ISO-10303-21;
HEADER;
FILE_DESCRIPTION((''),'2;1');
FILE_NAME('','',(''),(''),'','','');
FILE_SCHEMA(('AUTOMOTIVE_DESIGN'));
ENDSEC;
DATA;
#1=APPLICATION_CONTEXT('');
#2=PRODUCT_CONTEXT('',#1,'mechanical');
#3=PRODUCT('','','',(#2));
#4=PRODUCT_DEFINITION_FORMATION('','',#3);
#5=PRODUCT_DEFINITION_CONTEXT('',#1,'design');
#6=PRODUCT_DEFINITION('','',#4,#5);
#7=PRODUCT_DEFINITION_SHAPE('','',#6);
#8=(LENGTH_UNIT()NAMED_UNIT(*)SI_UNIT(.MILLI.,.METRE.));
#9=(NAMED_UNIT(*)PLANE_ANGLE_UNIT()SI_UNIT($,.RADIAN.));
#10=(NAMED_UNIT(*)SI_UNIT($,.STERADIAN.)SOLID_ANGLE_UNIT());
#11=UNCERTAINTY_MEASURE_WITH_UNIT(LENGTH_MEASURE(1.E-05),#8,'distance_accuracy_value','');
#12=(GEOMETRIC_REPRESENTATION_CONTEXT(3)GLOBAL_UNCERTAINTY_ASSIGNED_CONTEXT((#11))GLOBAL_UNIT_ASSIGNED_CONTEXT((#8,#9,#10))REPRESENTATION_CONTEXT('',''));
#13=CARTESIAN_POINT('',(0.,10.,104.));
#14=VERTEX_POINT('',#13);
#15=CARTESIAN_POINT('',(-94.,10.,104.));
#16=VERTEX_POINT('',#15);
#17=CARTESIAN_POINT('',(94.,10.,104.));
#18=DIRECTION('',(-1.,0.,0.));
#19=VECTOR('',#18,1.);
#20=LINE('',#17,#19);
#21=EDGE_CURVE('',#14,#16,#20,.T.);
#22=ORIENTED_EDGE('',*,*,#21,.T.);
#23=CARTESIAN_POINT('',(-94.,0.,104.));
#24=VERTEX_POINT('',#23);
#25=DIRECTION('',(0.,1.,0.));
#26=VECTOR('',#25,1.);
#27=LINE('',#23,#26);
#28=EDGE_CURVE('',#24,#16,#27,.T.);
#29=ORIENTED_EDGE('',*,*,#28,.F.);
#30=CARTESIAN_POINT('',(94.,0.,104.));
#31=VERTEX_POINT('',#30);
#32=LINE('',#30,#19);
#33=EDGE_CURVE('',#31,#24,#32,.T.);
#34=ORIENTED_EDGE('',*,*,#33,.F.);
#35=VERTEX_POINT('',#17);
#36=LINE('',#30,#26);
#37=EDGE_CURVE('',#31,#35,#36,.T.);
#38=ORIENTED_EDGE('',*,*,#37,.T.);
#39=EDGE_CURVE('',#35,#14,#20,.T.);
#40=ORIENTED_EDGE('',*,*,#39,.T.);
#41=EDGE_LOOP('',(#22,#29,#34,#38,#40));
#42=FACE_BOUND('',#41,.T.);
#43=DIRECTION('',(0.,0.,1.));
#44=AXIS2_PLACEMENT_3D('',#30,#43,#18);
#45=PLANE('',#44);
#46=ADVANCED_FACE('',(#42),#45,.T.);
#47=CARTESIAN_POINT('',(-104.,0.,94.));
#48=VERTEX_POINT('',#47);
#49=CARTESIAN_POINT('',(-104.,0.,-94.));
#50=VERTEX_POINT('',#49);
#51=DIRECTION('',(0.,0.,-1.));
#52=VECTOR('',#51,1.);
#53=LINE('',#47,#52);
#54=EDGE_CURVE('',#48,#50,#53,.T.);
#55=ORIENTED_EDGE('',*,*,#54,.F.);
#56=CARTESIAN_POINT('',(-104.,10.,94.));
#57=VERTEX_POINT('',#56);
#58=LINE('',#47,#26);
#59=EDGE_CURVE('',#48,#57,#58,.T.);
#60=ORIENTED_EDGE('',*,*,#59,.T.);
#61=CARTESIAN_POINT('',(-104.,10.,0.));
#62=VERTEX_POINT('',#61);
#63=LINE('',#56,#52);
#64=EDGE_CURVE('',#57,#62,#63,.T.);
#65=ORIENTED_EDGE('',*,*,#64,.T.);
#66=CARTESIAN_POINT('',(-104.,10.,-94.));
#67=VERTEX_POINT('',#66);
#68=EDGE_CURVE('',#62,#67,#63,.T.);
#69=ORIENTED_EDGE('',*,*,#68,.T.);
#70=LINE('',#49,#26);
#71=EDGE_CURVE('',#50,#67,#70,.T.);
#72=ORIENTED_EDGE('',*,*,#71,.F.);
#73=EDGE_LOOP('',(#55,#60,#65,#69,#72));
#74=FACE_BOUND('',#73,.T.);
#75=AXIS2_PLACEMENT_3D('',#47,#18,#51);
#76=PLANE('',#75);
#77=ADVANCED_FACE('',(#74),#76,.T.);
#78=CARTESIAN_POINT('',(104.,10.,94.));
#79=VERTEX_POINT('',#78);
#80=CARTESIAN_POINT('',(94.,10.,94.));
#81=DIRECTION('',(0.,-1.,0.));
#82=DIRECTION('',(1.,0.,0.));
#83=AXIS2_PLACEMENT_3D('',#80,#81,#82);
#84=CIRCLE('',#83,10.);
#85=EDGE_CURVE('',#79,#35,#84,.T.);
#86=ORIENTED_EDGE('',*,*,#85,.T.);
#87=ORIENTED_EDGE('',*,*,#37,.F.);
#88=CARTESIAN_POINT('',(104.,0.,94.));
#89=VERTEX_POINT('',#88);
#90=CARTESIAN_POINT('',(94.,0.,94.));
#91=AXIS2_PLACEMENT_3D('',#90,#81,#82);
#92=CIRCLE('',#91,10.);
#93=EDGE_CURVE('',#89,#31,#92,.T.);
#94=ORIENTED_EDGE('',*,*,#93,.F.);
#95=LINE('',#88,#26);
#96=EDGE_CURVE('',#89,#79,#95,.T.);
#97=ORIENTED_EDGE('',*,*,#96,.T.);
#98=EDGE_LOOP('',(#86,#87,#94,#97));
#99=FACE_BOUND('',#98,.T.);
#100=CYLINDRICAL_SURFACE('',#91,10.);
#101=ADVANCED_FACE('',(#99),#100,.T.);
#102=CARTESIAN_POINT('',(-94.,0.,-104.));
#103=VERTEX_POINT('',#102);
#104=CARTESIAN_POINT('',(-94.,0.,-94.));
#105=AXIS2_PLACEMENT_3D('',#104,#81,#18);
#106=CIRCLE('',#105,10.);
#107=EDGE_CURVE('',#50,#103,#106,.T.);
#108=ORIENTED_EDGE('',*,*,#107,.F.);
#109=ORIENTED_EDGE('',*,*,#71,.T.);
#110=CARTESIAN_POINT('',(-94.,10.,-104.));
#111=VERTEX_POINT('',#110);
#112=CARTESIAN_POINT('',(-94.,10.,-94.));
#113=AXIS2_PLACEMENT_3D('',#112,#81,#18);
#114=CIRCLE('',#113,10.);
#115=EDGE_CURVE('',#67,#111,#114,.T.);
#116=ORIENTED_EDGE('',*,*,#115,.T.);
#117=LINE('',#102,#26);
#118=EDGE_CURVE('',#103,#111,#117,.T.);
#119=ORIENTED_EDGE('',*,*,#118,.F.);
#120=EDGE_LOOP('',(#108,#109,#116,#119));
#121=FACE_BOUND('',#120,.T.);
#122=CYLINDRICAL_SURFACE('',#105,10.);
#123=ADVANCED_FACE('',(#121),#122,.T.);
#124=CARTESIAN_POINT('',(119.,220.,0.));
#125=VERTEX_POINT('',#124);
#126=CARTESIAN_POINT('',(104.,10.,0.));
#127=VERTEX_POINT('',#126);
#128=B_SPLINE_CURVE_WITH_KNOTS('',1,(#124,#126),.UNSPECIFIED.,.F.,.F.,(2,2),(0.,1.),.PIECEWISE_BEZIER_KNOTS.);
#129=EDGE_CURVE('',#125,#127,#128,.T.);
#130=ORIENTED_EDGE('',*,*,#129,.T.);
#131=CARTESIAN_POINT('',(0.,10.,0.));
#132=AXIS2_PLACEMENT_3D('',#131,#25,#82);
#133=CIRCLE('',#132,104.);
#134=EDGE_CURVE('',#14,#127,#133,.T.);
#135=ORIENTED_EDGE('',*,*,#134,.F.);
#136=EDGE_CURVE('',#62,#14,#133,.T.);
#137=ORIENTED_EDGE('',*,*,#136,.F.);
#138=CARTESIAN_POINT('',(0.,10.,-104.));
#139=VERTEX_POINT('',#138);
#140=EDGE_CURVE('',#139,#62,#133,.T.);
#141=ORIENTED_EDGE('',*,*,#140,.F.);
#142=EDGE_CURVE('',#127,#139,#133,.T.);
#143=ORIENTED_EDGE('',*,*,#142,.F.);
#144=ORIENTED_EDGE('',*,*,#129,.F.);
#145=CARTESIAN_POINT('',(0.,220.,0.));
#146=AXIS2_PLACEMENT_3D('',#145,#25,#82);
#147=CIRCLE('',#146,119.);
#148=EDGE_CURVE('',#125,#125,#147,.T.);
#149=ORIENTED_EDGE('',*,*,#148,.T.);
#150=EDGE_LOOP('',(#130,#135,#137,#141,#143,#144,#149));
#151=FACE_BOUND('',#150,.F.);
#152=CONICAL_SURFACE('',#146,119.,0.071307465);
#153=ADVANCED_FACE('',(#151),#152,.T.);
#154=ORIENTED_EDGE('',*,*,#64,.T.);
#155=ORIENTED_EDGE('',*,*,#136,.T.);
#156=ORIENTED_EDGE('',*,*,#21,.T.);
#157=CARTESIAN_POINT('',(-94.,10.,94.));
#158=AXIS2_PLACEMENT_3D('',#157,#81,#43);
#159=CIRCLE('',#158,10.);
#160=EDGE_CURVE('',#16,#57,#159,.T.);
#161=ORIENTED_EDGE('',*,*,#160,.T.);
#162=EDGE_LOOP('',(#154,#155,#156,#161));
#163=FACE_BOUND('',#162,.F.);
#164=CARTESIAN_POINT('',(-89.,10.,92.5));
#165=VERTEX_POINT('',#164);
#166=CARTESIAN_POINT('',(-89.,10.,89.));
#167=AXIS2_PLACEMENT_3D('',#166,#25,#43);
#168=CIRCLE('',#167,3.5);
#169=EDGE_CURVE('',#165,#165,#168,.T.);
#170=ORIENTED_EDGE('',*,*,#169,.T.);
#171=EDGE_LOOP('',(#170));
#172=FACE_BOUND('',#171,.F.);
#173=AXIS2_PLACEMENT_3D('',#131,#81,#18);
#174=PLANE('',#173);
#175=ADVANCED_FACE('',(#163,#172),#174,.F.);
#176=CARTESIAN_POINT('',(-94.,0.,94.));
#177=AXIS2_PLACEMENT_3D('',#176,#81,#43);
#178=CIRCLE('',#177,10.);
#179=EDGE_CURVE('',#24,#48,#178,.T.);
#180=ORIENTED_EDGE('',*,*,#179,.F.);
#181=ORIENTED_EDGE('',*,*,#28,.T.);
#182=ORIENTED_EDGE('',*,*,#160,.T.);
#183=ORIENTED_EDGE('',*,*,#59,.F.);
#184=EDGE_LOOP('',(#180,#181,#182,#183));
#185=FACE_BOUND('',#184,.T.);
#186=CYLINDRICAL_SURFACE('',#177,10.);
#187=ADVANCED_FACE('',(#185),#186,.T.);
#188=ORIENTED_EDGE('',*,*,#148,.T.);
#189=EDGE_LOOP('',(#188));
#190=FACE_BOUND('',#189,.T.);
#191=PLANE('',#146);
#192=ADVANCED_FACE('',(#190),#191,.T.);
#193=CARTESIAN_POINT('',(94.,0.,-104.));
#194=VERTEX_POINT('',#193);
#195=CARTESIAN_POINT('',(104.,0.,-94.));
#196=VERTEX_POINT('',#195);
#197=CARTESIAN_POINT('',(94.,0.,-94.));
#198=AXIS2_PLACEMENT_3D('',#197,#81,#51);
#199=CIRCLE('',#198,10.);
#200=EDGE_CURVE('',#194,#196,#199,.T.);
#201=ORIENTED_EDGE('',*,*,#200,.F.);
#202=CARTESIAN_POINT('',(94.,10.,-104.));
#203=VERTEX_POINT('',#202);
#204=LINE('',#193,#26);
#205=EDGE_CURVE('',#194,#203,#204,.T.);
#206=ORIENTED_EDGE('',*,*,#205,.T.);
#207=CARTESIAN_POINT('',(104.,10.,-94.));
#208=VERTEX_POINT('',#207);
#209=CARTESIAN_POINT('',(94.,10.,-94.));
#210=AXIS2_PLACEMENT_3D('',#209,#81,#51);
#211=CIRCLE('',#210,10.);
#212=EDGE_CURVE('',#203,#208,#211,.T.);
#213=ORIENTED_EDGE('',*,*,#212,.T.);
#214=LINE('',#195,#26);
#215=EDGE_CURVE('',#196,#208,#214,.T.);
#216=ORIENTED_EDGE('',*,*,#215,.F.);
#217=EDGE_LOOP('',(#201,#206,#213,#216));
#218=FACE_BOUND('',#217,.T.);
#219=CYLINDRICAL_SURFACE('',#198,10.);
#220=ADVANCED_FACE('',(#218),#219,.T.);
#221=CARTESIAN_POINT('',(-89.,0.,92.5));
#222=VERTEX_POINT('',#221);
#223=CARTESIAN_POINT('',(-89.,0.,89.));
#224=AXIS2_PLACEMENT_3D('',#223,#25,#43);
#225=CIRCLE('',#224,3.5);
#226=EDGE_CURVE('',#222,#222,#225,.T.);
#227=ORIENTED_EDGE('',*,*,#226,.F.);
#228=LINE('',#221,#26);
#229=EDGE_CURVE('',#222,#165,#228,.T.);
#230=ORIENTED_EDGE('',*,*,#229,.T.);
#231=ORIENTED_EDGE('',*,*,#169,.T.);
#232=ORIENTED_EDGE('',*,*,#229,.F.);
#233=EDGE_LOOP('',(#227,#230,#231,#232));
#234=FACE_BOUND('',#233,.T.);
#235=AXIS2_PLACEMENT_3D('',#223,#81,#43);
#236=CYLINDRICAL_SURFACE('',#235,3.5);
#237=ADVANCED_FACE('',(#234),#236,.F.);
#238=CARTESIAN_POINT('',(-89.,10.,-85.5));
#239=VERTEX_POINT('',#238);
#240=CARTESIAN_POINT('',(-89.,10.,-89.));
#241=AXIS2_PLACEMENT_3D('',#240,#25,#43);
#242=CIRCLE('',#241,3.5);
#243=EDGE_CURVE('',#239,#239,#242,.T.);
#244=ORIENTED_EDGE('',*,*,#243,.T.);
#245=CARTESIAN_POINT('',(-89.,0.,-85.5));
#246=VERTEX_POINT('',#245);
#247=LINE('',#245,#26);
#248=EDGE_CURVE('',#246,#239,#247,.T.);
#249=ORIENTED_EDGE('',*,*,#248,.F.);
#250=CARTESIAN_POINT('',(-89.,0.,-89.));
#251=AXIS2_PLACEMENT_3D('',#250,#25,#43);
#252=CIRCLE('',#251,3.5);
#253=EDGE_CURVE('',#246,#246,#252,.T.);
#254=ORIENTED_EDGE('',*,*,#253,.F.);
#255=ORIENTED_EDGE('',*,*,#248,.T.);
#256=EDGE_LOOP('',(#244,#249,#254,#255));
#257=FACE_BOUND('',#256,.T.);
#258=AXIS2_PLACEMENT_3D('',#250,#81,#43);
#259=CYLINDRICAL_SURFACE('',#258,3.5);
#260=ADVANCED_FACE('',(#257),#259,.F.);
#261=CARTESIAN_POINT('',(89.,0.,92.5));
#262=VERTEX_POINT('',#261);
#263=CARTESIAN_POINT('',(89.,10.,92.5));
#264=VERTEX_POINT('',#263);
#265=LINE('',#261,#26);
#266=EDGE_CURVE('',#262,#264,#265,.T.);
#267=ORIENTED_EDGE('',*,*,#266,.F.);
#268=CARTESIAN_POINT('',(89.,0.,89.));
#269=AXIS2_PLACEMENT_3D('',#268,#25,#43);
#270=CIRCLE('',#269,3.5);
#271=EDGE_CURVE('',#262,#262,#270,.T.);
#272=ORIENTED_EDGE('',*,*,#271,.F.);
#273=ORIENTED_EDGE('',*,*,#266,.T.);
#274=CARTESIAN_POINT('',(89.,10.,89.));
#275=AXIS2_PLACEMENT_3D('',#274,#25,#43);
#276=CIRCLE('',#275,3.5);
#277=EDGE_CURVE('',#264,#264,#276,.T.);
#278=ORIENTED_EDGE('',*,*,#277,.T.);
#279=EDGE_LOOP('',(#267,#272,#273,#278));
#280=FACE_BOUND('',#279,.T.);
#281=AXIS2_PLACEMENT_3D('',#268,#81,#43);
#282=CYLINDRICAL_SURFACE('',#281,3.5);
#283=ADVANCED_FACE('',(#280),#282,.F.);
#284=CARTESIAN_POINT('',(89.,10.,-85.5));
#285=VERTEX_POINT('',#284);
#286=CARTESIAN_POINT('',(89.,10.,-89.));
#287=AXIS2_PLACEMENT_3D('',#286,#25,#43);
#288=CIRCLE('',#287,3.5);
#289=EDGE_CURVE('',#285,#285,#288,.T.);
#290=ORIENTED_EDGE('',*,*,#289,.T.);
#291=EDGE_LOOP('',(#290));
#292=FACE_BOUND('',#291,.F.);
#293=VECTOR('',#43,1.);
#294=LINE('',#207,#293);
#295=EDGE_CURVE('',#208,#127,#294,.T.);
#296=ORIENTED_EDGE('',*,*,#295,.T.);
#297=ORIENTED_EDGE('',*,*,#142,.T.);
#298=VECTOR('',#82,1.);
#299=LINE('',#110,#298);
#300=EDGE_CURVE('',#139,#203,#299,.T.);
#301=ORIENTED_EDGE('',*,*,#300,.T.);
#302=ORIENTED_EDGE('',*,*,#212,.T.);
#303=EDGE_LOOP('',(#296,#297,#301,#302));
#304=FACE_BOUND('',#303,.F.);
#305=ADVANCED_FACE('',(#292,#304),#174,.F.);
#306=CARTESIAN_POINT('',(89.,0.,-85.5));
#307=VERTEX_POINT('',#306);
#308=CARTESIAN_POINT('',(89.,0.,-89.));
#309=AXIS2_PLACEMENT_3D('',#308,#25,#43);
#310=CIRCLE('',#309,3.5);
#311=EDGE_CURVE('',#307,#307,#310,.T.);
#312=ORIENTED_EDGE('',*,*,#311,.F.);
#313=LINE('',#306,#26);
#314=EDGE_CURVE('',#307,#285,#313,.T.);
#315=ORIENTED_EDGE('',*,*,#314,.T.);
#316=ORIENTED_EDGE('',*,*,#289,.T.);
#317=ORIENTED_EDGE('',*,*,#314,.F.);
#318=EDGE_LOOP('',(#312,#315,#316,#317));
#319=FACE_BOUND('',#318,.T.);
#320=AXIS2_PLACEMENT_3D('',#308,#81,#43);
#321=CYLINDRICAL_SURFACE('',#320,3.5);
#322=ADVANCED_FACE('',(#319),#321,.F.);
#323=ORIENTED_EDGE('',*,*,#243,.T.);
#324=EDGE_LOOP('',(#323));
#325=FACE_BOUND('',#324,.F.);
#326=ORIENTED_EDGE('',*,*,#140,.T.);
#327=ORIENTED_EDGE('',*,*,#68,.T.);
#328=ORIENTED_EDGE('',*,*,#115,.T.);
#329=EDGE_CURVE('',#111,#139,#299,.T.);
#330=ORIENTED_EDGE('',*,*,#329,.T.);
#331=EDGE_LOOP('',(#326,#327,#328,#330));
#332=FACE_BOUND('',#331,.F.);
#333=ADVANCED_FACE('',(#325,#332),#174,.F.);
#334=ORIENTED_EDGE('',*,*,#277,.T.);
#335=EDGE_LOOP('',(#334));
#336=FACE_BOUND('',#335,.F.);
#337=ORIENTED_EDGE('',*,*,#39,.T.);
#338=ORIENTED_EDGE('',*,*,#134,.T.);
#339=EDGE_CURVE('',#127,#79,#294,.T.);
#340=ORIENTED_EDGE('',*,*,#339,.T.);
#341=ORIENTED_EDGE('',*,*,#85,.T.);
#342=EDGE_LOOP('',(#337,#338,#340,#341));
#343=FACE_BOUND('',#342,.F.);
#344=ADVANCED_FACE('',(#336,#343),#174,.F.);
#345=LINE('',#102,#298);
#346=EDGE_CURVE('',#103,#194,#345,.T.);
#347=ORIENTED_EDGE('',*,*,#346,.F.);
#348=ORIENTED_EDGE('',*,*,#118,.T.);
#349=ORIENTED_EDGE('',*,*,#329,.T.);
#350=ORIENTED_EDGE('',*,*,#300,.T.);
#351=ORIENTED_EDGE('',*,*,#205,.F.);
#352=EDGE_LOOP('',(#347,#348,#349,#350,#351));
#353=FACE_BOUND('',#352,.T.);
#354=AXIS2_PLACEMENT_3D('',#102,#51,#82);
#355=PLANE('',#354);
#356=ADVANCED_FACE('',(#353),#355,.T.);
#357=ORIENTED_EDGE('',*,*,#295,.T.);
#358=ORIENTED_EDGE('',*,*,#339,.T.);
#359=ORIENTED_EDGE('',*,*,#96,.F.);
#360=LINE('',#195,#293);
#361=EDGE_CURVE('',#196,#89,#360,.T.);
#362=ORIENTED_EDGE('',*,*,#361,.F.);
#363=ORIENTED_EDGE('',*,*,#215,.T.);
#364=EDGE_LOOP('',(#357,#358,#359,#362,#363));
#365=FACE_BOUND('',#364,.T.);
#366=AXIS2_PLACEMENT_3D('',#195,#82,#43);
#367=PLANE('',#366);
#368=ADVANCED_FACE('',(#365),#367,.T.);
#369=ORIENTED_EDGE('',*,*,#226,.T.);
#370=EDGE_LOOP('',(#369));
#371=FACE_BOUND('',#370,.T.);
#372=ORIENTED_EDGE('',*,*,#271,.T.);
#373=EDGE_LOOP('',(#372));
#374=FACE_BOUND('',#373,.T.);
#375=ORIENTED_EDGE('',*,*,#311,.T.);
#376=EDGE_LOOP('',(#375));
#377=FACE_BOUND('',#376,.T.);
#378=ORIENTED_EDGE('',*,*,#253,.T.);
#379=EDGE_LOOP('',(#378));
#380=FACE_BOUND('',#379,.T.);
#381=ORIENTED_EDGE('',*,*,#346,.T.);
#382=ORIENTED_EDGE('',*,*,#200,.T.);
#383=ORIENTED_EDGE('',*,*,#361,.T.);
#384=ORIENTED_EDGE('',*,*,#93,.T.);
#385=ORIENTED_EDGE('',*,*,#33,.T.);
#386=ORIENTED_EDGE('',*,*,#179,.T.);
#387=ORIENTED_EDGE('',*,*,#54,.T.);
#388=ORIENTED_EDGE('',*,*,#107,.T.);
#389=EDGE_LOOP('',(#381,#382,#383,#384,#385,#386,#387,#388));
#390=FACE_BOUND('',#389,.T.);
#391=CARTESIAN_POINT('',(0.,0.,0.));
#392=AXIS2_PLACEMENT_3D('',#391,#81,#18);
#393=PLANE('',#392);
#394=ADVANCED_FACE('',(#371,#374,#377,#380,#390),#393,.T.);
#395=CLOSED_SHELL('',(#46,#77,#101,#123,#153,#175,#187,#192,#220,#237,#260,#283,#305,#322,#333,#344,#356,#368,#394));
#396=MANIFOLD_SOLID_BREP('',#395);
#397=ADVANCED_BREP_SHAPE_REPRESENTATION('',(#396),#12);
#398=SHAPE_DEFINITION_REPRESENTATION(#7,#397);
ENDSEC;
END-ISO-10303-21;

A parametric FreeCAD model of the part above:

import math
import FreeCAD as App
import Part
import Sketcher

V = App.Vector

doc = App.newDocument("Part")
body = doc.addObject("PartDesign::Body", "Body")

sketch1 = doc.addObject("Sketcher::SketchObject", "Sketch")
body.addObject(sketch1)
sketch1.AttachmentSupport = (doc.XZ_Plane, [""])
sketch1.MapMode = "FlatFace"
sketch1.addGeometry([
    Part.LineSegment(V(94, -104, 0), V(-94, -104, 0)),
    Part.ArcOfCircle(Part.Circle(V(-94, -94, 0), V(0, 0, 1), 10), math.radians(180), math.radians(270)),
    Part.LineSegment(V(-104, -94, 0), V(-104, 94, 0)),
    Part.ArcOfCircle(Part.Circle(V(-94, 94, 0), V(0, 0, 1), 10), math.radians(90), math.radians(180)),
    Part.LineSegment(V(-94, 104, 0), V(94, 104, 0)),
    Part.ArcOfCircle(Part.Circle(V(94, 94, 0), V(0, 0, 1), 10), math.radians(0), math.radians(90)),
    Part.LineSegment(V(104, 94, 0), V(104, -94, 0)),
    Part.ArcOfCircle(Part.Circle(V(94, -94, 0), V(0, 0, 1), 10), math.radians(-90), math.radians(0)),
    Part.Circle(V(89, 89, 0), V(0, 0, 1), 3.5),
    Part.Circle(V(-89, 89, 0), V(0, 0, 1), 3.5),
    Part.Circle(V(89, -89, 0), V(0, 0, 1), 3.5),
    Part.Circle(V(-89, -89, 0), V(0, 0, 1), 3.5),
], False)
sketch1.addConstraint([
    Sketcher.Constraint("Tangent", 0, 2, 1, 2),
    Sketcher.Constraint("Tangent", 1, 1, 2, 1),
    Sketcher.Constraint("Tangent", 2, 2, 3, 2),
    Sketcher.Constraint("Tangent", 3, 1, 4, 1),
    Sketcher.Constraint("Tangent", 4, 2, 5, 2),
    Sketcher.Constraint("Tangent", 5, 1, 6, 1),
    Sketcher.Constraint("Tangent", 6, 2, 7, 2),
    Sketcher.Constraint("Tangent", 7, 1, 0, 1),
    Sketcher.Constraint("Horizontal", 0),
    Sketcher.Constraint("Vertical", 2),
    Sketcher.Constraint("Horizontal", 4),
    Sketcher.Constraint("Vertical", 6),
    Sketcher.Constraint("Equal", 1, 3),
    Sketcher.Constraint("Equal", 3, 5),
    Sketcher.Constraint("Equal", 5, 7),
    Sketcher.Constraint("Equal", 8, 9),
    Sketcher.Constraint("Equal", 9, 10),
    Sketcher.Constraint("Equal", 10, 11),
    Sketcher.Constraint("Symmetric", 1, 3, 5, 3, -1, 1),
    Sketcher.Constraint("Symmetric", 9, 3, 10, 3, -1, 1),
    Sketcher.Constraint("Symmetric", 8, 3, 11, 3, -1, 1),
    Sketcher.Constraint("Symmetric", 8, 3, 9, 3, -2),
    Sketcher.Constraint("Equal", 4, 2),
    Sketcher.Constraint("Diameter", 8, 7.0),
    Sketcher.Constraint("Radius", 1, 10.0),
    Sketcher.Constraint("DistanceX", 0, 2, 0, 1, 188.0),
    Sketcher.Constraint("DistanceX", -1, 1, 8, 3, 89.0),
    Sketcher.Constraint("DistanceY", -1, 1, 8, 3, 89.0),
])
pad1 = doc.addObject("PartDesign::Pad", "Pad")
body.addObject(pad1)
pad1.Profile = sketch1
pad1.Length = 10
pad1.Reversed = True

sketch2 = doc.addObject("Sketcher::SketchObject", "Sketch001")
body.addObject(sketch2)
sketch2.AttachmentSupport = (doc.XZ_Plane, [""])
sketch2.MapMode = "FlatFace"
sketch2.AttachmentOffset = App.Placement(V(0, 0, -220), App.Rotation())
sketch2.addGeometry(Part.Circle(V(0, 0, 0), V(0, 0, 1), 119), False)
sketch2.addConstraint([
    Sketcher.Constraint("Coincident", 0, 3, -1, 1),
    Sketcher.Constraint("Diameter", 0, 238.0),
])

sketch3 = doc.addObject("Sketcher::SketchObject", "Sketch002")
body.addObject(sketch3)
sketch3.AttachmentSupport = (doc.XZ_Plane, [""])
sketch3.MapMode = "FlatFace"
sketch3.AttachmentOffset = App.Placement(V(0, 0, -10), App.Rotation())
sketch3.addGeometry(Part.Circle(V(0, 0, 0), V(0, 0, 1), 104), False)
sketch3.addConstraint([
    Sketcher.Constraint("Coincident", 0, 3, -1, 1),
    Sketcher.Constraint("Diameter", 0, 208.0),
])

additiveloft = doc.addObject("PartDesign::AdditiveLoft", "AdditiveLoft")
body.addObject(additiveloft)
additiveloft.Profile = sketch2
additiveloft.Sections = [sketch3]

doc.recompute()
